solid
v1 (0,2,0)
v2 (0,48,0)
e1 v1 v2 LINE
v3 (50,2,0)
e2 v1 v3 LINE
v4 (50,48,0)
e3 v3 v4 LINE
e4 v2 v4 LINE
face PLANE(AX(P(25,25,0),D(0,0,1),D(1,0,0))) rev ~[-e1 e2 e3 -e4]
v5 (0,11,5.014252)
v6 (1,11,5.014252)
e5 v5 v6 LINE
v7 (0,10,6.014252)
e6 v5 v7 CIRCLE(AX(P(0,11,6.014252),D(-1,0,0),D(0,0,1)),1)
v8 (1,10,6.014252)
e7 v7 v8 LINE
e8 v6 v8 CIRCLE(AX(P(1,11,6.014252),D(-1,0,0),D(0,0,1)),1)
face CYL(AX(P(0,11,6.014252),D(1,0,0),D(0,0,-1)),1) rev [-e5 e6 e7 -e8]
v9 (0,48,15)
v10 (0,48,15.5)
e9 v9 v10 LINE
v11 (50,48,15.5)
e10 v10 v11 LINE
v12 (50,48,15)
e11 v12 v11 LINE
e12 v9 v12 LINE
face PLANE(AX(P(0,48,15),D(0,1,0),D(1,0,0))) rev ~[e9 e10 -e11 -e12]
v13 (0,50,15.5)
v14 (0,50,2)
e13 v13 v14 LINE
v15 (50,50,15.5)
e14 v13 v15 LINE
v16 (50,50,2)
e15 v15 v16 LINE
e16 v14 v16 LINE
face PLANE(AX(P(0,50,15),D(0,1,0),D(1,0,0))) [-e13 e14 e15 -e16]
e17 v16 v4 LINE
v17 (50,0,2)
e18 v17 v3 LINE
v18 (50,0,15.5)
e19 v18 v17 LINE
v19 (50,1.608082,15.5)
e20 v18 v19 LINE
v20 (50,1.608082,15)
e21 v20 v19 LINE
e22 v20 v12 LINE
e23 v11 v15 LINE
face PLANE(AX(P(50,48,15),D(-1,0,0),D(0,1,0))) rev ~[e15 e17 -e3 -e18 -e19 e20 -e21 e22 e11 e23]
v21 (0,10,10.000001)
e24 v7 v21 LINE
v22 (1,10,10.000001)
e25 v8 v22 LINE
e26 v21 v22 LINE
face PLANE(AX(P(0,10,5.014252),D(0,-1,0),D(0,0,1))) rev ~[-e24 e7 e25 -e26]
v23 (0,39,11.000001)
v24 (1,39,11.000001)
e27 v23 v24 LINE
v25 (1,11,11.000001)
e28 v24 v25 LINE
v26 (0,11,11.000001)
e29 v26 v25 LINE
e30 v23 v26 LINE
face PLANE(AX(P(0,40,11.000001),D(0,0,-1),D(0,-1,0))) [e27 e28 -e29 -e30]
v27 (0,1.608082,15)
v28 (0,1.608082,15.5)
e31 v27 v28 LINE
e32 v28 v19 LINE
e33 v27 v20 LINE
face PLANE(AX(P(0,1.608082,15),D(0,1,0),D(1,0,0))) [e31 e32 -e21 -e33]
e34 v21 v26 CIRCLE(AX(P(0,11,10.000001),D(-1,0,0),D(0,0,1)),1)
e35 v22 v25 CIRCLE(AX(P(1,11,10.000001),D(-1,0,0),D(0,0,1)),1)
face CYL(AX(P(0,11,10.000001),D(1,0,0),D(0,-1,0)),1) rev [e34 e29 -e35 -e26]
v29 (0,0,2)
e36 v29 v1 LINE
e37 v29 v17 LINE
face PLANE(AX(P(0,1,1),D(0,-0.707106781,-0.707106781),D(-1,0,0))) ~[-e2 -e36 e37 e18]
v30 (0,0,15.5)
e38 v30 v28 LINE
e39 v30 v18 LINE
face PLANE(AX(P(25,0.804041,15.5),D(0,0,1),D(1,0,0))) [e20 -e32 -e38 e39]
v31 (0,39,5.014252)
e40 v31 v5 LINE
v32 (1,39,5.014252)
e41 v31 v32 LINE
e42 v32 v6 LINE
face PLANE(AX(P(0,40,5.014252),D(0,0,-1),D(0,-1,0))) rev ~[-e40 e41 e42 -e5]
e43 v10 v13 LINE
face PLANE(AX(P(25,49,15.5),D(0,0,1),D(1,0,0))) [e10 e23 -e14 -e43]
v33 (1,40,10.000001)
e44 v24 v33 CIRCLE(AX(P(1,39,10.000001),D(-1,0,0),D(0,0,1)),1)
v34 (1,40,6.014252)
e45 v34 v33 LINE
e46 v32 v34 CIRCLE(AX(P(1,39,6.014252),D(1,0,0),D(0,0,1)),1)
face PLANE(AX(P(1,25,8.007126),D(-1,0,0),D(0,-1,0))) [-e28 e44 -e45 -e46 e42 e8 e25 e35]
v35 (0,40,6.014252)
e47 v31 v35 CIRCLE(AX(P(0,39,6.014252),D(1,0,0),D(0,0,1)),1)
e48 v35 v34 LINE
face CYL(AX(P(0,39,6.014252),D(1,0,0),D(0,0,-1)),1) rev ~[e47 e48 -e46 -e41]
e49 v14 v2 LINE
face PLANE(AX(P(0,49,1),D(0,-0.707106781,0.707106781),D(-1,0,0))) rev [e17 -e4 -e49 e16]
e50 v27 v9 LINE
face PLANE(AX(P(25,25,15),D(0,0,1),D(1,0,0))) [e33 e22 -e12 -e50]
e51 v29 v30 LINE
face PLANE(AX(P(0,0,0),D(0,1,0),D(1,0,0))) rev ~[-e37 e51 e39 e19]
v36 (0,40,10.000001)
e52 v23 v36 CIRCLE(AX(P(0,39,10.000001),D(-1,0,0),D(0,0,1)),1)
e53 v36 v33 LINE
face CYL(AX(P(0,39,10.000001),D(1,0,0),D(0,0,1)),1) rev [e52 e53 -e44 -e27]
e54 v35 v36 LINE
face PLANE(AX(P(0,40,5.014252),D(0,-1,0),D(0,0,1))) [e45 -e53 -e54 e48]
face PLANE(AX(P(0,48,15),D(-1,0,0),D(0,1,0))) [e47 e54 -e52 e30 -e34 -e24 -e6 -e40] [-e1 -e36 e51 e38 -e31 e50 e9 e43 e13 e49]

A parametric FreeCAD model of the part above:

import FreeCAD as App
import Part
import Sketcher
Q = App.Units.Quantity


def edges_at(feature, points):
    """Names of the edges that pass closest to the given points."""
    edges = feature.Shape.Edges
    near = lambda p: min(range(len(edges)), key=lambda i: edges[i].distToShape(Part.Vertex(*p))[0])
    return sorted({f"Edge{near(p) + 1}" for p in points})


def add_polygon(sketch, points):
    """Adds a closed chain of lines whose ends are joined by coincident constraints."""
    first, n = sketch.GeometryCount, len(points)
    for a, b in zip(points, points[1:] + points[:1]):
        sketch.addGeometry(Part.LineSegment(App.Vector(*a, 0), App.Vector(*b, 0)), False)
    for i in range(n):
        sketch.addConstraint(Sketcher.Constraint("Coincident", first + i, 2, first + (i + 1) % n, 1))

doc = App.newDocument("Part")
params = doc.addObject("Spreadsheet::Sheet", "Params")
for row, (alias, value) in enumerate([
    ("sketch1_width", "50 mm"),
    ("pad1_length", "15 mm"),
    ("chamfer_size", "2 mm"),
    ("sketch2_width", "30 mm"),
    ("pocket1_length", "1 mm"),
    ("fillet_radius", "1 mm"),
    ("sketch3_width", "50 mm"),
    ("sketch3_height", "2 mm"),
    ("pad2_length", "0.5 mm"),
], start=1):
    params.set(f"A{row}", alias)
    params.set(f"B{row}", "=" + value)
    params.setAlias(f"B{row}", alias)

body = doc.addObject("PartDesign::Body", "Body")

# Sketch on XY plane
sketch1 = body.newObject("Sketcher::SketchObject", "Sketch")
sketch1.AttachmentSupport = (doc.getObject("XY_Plane"), [""])
sketch1.MapMode = "FlatFace"
add_polygon(sketch1, [(0, 50), (0, 0), (50, 0), (50, 50)])  # lines 0-3
sketch1.addConstraint(Sketcher.Constraint("Vertical", 0))
sketch1.addConstraint(Sketcher.Constraint("Horizontal", 1))
sketch1.addConstraint(Sketcher.Constraint("Vertical", 2))
sketch1.addConstraint(Sketcher.Constraint("Horizontal", 3))
sketch1.addConstraint(Sketcher.Constraint("Coincident", 0, 2, -1, 1))
sketch1.addConstraint(Sketcher.Constraint("Equal", 3, 0))
sketch1.addConstraint(Sketcher.Constraint("DistanceX", 1, 1, 1, 2, Q("50 mm")))
sketch1.setExpression("Constraints[10]", "Params.sketch1_width")
pad1 = body.newObject("PartDesign::Pad", "Pad")
pad1.Profile = sketch1
pad1.setExpression("Length", "Params.pad1_length")
doc.recompute()

chamfer = body.newObject("PartDesign::Chamfer", "Chamfer")
chamfer.Base = (pad1, edges_at(pad1, [(25, 0, 0), (25, 50, 0)]))
chamfer.setExpression("Size", "Params.chamfer_size")

# Sketch on YZ plane
sketch2 = body.newObject("Sketcher::SketchObject", "Sketch001")
sketch2.AttachmentSupport = (doc.getObject("YZ_Plane"), [""])
sketch2.MapMode = "FlatFace"
add_polygon(sketch2, [(40, 11), (40, 5), (10, 5), (10, 11)])  # lines 0-3
sketch2.addConstraint(Sketcher.Constraint("Vertical", 0))
sketch2.addConstraint(Sketcher.Constraint("Horizontal", 1))
sketch2.addConstraint(Sketcher.Constraint("Vertical", 2))
sketch2.addConstraint(Sketcher.Constraint("Horizontal", 3))
sketch2.addConstraint(Sketcher.Constraint("DistanceX", 1, 2, 1, 1, Q("30 mm")))
sketch2.addConstraint(Sketcher.Constraint("DistanceX", -1, 1, 0, 2, Q("40 mm")))
sketch2.addConstraint(Sketcher.Constraint("DistanceY", -1, 1, 2, 2, Q("11.000001 mm")))
sketch2.addConstraint(Sketcher.Constraint("DistanceY", 0, 2, 0, 1, Q("5.985749 mm")))
sketch2.setExpression("Constraints[8]", "Params.sketch2_width")
pocket1 = body.newObject("PartDesign::Pocket", "Pocket")
pocket1.Profile = sketch2
pocket1.setExpression("Length", "Params.pocket1_length")
pocket1.Reversed = True
doc.recompute()

fillet = body.newObject("PartDesign::Fillet", "Fillet")
fillet.Base = (pocket1, edges_at(pocket1, [
    (0.5, 40, 11),
    (0.5, 40, 5.014),
    (0.5, 10, 11),
    (0.5, 10, 5.014),
]))
fillet.setExpression("Radius", "Params.fillet_radius")

# Sketch on XY plane
sketch3 = body.newObject("Sketcher::SketchObject", "Sketch002")
sketch3.AttachmentSupport = (doc.getObject("XY_Plane"), [""])
sketch3.MapMode = "FlatFace"
sketch3.AttachmentOffset = App.Placement(App.Vector(0, 0, 15), App.Rotation())
add_polygon(sketch3, [(0, 50), (0, 48), (50, 48), (50, 50)])  # lines 0-3
add_polygon(sketch3, [(0, 1.6), (0, 0), (50, 0), (50, 1.6)])  # lines 4-7
sketch3.addConstraint(Sketcher.Constraint("Vertical", 0))
sketch3.addConstraint(Sketcher.Constraint("Horizontal", 1))
sketch3.addConstraint(Sketcher.Constraint("Vertical", 2))
sketch3.addConstraint(Sketcher.Constraint("Horizontal", 3))
sketch3.addConstraint(Sketcher.Constraint("Vertical", 4))
sketch3.addConstraint(Sketcher.Constraint("Horizontal", 5))
sketch3.addConstraint(Sketcher.Constraint("Vertical", 6))
sketch3.addConstraint(Sketcher.Constraint("Horizontal", 7))
sketch3.addConstraint(Sketcher.Constraint("Coincident", 4, 2, -1, 1))
sketch3.addConstraint(Sketcher.Constraint("PointOnObject", 0, 2, -2))
sketch3.addConstraint(Sketcher.Constraint("Vertical", 2, 2, 5, 2))
sketch3.addConstraint(Sketcher.Constraint("DistanceX", 1, 1, 1, 2, Q("50 mm")))
sketch3.addConstraint(Sketcher.Constraint("DistanceY", 0, 2, 0, 1, Q("2 mm")))
sketch3.addConstraint(Sketcher.Constraint("DistanceY", -1, 1, 0, 2, Q("48 mm")))
sketch3.addConstraint(Sketcher.Constraint("DistanceY", 4, 2, 4, 1, Q("1.608082 mm")))
sketch3.setExpression("Constraints[19]", "Params.sketch3_width")
sketch3.setExpression("Constraints[20]", "Params.sketch3_height")
pad2 = body.newObject("PartDesign::Pad", "Pad001")
pad2.Profile = sketch3
pad2.setExpression("Length", "Params.pad2_length")

doc.recompute()
